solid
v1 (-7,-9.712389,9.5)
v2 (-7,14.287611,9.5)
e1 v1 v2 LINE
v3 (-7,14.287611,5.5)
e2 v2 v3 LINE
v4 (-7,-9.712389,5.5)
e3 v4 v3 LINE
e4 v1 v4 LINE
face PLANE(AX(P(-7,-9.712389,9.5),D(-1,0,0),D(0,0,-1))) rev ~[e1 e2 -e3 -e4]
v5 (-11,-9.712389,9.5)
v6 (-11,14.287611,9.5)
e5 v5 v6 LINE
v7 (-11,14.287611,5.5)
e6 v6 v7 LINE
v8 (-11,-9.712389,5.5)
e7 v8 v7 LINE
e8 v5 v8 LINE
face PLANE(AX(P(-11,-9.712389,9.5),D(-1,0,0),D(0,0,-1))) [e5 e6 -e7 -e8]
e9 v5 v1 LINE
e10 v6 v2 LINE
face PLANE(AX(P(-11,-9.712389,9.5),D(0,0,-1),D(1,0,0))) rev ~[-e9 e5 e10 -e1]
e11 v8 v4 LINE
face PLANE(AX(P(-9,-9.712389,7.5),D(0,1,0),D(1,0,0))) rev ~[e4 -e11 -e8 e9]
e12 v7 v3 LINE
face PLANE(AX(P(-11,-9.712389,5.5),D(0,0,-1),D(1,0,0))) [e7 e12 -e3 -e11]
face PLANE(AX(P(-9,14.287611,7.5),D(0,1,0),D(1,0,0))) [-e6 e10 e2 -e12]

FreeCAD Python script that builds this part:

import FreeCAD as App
import Part
import Sketcher
from FreeCAD import Vector

doc = App.newDocument("Part")
body = doc.addObject("PartDesign::Body", "Body")

sketch1 = body.newObject("Sketcher::SketchObject", "Sketch")
sketch1.AttachmentSupport = (doc.getObject("XZ_Plane"), [""])
sketch1.MapMode = "FlatFace"
sketch1.AttachmentOffset = App.Placement(Vector(0, 0, 9.712389), App.Rotation())
sketch1.addGeometry([
    Part.LineSegment(Vector(-11, 5.5, 0), Vector(-11, 9.5, 0)),
    Part.LineSegment(Vector(-11, 9.5, 0), Vector(-7, 9.5, 0)),
    Part.LineSegment(Vector(-7, 9.5, 0), Vector(-7, 5.5, 0)),
    Part.LineSegment(Vector(-7, 5.5, 0), Vector(-11, 5.5, 0)),
], False)
sketch1.addConstraint([
    Sketcher.Constraint("Coincident", 0, 2, 1, 1),
    Sketcher.Constraint("Coincident", 1, 2, 2, 1),
    Sketcher.Constraint("Coincident", 2, 2, 3, 1),
    Sketcher.Constraint("Coincident", 3, 2, 0, 1),
    Sketcher.Constraint("Vertical", 0),
    Sketcher.Constraint("Horizontal", 1),
    Sketcher.Constraint("Vertical", 2),
    Sketcher.Constraint("Horizontal", 3),
    Sketcher.Constraint("Equal", 3, 0),
    Sketcher.Constraint("DistanceX", 1, 1, 1, 2, 4.0),
    Sketcher.Constraint("DistanceX", 0, 2, -1, 1, 11.0),
    Sketcher.Constraint("DistanceY", -1, 1, 0, 2, 9.5),
])
pad1 = body.newObject("PartDesign::Pad", "Pad")
pad1.Profile = sketch1
pad1.Length = 24
pad1.Reversed = True

doc.recompute()
